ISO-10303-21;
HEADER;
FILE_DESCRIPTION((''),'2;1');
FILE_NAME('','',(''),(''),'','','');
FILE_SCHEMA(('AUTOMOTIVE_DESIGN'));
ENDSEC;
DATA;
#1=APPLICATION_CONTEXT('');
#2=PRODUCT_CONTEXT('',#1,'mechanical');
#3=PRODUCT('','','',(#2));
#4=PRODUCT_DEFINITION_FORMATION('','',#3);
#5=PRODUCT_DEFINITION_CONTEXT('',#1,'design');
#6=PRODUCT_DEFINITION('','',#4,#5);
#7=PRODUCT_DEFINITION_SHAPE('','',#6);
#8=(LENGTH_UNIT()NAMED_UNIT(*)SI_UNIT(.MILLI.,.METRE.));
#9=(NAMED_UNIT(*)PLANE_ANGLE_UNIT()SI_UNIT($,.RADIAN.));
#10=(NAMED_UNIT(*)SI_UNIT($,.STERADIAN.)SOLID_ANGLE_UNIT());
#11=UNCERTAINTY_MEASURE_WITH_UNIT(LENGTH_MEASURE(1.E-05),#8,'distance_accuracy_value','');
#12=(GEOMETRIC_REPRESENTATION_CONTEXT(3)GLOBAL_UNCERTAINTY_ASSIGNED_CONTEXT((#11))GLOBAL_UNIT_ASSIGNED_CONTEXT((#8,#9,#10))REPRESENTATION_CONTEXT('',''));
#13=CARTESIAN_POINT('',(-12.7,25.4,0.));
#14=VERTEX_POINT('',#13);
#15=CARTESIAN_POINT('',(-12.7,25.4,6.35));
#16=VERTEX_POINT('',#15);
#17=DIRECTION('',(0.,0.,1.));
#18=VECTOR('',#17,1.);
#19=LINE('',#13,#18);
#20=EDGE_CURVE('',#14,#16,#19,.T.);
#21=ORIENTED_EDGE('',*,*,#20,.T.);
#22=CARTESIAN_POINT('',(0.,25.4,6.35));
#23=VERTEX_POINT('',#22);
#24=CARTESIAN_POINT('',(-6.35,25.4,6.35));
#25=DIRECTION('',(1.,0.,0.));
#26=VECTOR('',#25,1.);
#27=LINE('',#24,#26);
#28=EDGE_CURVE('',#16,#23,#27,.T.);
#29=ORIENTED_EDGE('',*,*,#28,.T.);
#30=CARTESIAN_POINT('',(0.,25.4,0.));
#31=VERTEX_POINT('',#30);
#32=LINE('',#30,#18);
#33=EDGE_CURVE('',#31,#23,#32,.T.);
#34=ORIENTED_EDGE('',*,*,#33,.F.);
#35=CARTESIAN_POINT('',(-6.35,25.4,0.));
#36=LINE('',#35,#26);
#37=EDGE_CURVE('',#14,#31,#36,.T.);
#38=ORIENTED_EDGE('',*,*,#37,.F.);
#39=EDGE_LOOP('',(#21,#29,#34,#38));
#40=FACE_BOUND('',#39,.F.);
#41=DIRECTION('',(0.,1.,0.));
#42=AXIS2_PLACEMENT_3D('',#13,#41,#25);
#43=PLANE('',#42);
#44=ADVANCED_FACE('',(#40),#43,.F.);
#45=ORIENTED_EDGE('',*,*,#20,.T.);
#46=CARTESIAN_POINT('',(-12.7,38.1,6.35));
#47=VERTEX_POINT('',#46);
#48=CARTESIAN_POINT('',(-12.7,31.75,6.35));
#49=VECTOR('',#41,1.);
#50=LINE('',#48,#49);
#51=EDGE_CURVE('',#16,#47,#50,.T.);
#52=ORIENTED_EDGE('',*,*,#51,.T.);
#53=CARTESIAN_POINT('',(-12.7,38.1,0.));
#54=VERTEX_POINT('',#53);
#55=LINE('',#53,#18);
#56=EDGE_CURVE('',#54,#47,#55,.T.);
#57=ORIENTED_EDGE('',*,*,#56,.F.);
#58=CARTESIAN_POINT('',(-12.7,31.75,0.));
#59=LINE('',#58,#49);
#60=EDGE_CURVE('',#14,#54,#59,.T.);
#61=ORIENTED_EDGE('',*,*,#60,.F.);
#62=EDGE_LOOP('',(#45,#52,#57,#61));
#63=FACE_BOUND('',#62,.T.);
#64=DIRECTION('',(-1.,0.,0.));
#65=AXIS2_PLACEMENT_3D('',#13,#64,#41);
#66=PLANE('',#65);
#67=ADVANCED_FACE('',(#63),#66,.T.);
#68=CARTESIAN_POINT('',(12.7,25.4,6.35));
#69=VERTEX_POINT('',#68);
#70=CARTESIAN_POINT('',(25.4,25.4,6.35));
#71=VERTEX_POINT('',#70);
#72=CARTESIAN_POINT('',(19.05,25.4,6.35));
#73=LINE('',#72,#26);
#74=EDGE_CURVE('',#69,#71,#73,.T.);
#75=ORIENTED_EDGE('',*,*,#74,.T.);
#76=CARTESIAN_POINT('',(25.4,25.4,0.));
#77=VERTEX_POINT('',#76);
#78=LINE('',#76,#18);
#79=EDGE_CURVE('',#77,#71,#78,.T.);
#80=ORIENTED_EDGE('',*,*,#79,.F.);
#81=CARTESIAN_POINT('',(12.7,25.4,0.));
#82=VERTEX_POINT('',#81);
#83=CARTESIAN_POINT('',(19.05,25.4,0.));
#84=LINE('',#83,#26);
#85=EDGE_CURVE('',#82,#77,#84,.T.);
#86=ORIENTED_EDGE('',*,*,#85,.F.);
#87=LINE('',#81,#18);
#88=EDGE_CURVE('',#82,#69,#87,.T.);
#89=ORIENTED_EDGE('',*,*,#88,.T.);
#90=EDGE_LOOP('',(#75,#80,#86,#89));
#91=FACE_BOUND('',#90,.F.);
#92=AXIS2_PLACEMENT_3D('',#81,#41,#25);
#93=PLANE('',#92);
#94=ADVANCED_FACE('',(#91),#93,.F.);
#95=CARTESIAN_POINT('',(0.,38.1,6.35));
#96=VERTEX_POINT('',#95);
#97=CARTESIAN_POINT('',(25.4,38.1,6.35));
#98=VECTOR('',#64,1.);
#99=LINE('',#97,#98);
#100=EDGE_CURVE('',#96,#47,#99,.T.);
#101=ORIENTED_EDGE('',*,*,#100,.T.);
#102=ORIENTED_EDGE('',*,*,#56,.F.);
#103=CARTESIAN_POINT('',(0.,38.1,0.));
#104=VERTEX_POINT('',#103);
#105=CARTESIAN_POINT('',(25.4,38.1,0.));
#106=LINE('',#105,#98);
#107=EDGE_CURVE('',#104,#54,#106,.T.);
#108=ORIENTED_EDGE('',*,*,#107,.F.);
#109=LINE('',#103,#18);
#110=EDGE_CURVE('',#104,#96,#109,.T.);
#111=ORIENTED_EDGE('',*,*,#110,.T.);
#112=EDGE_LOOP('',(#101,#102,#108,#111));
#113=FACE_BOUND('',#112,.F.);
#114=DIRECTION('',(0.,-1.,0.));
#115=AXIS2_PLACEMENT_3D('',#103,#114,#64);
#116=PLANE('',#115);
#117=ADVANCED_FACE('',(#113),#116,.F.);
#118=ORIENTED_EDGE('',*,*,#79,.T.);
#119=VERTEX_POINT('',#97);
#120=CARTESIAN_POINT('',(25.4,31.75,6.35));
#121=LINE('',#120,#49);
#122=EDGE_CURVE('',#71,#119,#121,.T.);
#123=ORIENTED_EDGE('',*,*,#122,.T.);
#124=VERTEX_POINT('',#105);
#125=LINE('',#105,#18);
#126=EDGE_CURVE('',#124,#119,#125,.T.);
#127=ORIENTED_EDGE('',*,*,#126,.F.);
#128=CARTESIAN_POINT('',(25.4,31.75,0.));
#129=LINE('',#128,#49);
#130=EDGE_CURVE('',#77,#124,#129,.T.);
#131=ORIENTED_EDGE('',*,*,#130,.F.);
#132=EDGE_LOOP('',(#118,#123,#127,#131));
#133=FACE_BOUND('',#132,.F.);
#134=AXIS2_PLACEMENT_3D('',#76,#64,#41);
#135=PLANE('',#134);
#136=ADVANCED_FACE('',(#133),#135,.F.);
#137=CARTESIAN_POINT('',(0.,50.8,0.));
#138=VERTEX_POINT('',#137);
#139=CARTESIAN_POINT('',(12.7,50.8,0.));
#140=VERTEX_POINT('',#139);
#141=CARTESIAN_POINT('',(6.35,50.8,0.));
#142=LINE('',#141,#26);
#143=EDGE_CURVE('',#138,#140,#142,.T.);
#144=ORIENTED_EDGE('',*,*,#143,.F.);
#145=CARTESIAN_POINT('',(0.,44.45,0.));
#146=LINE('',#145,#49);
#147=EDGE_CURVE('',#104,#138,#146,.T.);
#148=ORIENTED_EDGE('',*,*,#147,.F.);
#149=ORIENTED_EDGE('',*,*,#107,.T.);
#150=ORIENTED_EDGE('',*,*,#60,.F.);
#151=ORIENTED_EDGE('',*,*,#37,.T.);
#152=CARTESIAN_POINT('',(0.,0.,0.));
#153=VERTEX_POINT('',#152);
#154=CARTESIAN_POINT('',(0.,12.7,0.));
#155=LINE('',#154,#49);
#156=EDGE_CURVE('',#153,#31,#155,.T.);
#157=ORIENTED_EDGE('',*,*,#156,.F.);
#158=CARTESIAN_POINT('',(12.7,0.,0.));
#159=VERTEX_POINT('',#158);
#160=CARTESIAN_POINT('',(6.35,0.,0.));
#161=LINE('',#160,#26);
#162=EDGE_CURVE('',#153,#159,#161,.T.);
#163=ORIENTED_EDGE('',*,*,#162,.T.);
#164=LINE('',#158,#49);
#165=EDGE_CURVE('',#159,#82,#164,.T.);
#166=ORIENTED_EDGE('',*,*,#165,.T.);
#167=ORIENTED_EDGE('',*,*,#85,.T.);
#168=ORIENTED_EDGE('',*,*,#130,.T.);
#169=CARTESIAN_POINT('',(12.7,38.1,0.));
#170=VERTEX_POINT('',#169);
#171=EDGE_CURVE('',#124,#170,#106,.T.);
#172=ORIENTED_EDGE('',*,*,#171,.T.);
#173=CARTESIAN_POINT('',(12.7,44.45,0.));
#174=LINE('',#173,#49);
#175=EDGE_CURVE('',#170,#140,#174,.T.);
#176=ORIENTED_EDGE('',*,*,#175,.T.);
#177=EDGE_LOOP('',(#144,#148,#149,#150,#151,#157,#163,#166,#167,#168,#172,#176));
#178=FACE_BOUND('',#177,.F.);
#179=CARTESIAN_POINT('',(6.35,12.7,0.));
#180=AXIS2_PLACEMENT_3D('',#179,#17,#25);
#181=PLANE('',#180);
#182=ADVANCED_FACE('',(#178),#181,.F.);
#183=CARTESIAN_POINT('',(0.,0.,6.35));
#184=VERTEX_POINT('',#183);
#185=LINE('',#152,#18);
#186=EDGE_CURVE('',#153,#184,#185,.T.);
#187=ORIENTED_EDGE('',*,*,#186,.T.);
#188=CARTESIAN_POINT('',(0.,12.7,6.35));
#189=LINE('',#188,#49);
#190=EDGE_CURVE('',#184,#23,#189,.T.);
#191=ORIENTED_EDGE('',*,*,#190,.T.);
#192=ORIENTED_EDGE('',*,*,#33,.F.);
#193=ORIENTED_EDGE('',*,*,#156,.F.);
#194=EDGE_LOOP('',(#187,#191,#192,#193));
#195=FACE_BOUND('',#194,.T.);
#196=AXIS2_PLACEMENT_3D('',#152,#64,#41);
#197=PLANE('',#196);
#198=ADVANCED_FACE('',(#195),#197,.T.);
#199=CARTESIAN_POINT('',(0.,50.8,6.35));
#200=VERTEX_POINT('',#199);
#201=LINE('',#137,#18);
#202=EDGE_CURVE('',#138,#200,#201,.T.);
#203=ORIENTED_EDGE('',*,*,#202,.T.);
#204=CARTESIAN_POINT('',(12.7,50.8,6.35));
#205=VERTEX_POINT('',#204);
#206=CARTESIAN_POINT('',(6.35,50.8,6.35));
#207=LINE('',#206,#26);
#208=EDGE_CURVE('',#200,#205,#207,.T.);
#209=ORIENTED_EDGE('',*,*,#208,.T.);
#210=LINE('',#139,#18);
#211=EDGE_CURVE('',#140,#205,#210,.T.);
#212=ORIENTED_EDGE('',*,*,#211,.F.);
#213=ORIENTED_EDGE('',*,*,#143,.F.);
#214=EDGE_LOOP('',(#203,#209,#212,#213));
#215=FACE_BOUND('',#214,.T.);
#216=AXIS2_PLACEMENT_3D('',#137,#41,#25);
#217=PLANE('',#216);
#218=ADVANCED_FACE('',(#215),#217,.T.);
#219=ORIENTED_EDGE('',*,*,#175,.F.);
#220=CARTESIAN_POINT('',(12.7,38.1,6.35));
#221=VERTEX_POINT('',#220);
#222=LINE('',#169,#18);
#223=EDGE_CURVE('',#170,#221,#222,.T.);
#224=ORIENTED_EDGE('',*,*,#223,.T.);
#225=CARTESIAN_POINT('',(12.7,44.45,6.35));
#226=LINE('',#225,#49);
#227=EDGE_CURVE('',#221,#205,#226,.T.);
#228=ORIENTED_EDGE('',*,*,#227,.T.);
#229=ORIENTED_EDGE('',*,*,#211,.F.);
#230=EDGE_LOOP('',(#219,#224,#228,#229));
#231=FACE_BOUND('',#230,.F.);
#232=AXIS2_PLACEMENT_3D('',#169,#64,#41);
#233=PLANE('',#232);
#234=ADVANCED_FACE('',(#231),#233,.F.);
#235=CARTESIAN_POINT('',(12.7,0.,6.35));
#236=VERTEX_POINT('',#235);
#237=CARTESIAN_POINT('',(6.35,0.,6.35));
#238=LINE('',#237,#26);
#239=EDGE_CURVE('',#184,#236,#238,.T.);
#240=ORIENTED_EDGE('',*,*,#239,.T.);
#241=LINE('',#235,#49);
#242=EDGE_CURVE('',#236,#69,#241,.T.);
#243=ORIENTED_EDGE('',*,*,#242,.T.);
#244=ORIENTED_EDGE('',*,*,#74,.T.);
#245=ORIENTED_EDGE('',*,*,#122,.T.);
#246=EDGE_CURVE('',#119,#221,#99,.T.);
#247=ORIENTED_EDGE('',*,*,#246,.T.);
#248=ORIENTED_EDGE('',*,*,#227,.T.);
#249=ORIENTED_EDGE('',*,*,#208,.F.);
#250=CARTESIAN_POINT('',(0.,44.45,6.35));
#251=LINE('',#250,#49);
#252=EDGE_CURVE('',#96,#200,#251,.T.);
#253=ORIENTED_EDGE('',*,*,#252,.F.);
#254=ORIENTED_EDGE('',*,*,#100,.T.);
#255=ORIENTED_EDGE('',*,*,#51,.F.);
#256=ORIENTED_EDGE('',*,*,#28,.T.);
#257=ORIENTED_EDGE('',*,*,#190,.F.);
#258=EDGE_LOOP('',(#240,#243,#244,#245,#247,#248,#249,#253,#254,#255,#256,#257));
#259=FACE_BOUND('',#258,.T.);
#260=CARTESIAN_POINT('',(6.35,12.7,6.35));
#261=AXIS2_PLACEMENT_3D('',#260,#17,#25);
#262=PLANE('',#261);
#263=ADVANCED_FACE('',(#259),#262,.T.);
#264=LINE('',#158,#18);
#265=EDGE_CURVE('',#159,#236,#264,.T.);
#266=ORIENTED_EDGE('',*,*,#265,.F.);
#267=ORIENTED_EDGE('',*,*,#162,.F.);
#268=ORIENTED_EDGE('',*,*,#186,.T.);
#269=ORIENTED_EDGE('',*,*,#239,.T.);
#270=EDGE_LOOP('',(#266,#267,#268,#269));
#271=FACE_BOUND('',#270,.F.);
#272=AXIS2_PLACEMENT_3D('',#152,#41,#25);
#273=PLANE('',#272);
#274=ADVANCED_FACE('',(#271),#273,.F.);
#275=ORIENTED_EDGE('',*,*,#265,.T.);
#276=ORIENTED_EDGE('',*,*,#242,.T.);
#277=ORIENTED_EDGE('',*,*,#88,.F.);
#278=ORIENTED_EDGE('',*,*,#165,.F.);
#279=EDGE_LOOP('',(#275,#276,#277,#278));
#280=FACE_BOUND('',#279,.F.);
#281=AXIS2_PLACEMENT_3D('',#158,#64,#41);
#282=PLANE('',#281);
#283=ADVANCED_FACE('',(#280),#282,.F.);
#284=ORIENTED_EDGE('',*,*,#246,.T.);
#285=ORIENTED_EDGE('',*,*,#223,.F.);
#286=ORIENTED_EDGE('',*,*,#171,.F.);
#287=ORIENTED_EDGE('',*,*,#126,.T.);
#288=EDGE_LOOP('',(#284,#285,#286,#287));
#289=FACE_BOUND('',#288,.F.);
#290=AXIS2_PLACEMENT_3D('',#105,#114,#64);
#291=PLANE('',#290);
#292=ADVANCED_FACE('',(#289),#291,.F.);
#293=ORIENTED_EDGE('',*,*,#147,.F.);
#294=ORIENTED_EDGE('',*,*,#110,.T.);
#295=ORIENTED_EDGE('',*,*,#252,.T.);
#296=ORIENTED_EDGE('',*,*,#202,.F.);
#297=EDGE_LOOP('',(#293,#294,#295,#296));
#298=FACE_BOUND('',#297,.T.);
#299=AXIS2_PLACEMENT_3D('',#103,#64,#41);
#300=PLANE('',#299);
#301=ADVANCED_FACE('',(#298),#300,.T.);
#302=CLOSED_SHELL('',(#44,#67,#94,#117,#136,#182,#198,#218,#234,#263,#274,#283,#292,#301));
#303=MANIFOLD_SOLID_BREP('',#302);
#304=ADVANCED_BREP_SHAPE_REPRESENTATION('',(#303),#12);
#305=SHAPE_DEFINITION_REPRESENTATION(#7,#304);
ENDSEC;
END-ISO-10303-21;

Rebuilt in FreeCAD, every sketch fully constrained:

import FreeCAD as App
import Part
import Sketcher
from FreeCAD import Vector
Q = App.Units.Quantity


def add_polygon(sketch, points):
    """Adds a closed chain of lines whose ends are joined by coincident constraints."""
    first, n = sketch.GeometryCount, len(points)
    for a, b in zip(points, points[1:] + points[:1]):
        sketch.addGeometry(Part.LineSegment(App.Vector(*a, 0), App.Vector(*b, 0)), False)
    for i in range(n):
        sketch.addConstraint(Sketcher.Constraint("Coincident", first + i, 2, first + (i + 1) % n, 1))

doc = App.newDocument("Part")
body = doc.addObject("PartDesign::Body", "Body")

# Sketch on XY plane
sketch1 = body.newObject("Sketcher::SketchObject", "Sketch")
sketch1.AttachmentSupport = (doc.getObject("XY_Plane"), [""])
sketch1.MapMode = "FlatFace"
add_polygon(sketch1, [(0, 25), (0, 0), (13, 0), (13, 25), (25, 25), (25, 38), (13, 38), (13, 51), (0, 51), (0, 38), (-13, 38), (-13, 25)])  # lines 0-11
sketch1.addConstraint(Sketcher.Constraint("Vertical", 0))
sketch1.addConstraint(Sketcher.Constraint("Horizontal", 1))
sketch1.addConstraint(Sketcher.Constraint("Vertical", 2))
sketch1.addConstraint(Sketcher.Constraint("Horizontal", 3))
sketch1.addConstraint(Sketcher.Constraint("Vertical", 4))
sketch1.addConstraint(Sketcher.Constraint("Horizontal", 5))
sketch1.addConstraint(Sketcher.Constraint("Vertical", 6))
sketch1.addConstraint(Sketcher.Constraint("Horizontal", 7))
sketch1.addConstraint(Sketcher.Constraint("Vertical", 8))
sketch1.addConstraint(Sketcher.Constraint("Horizontal", 9))
sketch1.addConstraint(Sketcher.Constraint("Vertical", 10))
sketch1.addConstraint(Sketcher.Constraint("Horizontal", 11))
sketch1.addConstraint(Sketcher.Constraint("Coincident", 0, 2, -1, 1))
sketch1.addConstraint(Sketcher.Constraint("Symmetric", 5, 2, 9, 2, -2))
sketch1.addConstraint(Sketcher.Constraint("Symmetric", 2, 2, 10, 2, -2))
sketch1.addConstraint(Sketcher.Constraint("PointOnObject", 7, 2, -2))
sketch1.addConstraint(Sketcher.Constraint("Equal", 1, 3))
sketch1.addConstraint(Sketcher.Constraint("Equal", 11, 4))
sketch1.addConstraint(Sketcher.Constraint("Equal", 4, 6))
sketch1.addConstraint(Sketcher.Constraint("DistanceY", 0, 2, 0, 1, Q("1 in")))
sketch1.addConstraint(Sketcher.Constraint("DistanceX", 1, 1, 1, 2, Q("0.5 in")))
pad1 = body.newObject("PartDesign::Pad", "Pad")
pad1.Profile = sketch1
pad1.Length = Q("0.25 in")

doc.recompute()
